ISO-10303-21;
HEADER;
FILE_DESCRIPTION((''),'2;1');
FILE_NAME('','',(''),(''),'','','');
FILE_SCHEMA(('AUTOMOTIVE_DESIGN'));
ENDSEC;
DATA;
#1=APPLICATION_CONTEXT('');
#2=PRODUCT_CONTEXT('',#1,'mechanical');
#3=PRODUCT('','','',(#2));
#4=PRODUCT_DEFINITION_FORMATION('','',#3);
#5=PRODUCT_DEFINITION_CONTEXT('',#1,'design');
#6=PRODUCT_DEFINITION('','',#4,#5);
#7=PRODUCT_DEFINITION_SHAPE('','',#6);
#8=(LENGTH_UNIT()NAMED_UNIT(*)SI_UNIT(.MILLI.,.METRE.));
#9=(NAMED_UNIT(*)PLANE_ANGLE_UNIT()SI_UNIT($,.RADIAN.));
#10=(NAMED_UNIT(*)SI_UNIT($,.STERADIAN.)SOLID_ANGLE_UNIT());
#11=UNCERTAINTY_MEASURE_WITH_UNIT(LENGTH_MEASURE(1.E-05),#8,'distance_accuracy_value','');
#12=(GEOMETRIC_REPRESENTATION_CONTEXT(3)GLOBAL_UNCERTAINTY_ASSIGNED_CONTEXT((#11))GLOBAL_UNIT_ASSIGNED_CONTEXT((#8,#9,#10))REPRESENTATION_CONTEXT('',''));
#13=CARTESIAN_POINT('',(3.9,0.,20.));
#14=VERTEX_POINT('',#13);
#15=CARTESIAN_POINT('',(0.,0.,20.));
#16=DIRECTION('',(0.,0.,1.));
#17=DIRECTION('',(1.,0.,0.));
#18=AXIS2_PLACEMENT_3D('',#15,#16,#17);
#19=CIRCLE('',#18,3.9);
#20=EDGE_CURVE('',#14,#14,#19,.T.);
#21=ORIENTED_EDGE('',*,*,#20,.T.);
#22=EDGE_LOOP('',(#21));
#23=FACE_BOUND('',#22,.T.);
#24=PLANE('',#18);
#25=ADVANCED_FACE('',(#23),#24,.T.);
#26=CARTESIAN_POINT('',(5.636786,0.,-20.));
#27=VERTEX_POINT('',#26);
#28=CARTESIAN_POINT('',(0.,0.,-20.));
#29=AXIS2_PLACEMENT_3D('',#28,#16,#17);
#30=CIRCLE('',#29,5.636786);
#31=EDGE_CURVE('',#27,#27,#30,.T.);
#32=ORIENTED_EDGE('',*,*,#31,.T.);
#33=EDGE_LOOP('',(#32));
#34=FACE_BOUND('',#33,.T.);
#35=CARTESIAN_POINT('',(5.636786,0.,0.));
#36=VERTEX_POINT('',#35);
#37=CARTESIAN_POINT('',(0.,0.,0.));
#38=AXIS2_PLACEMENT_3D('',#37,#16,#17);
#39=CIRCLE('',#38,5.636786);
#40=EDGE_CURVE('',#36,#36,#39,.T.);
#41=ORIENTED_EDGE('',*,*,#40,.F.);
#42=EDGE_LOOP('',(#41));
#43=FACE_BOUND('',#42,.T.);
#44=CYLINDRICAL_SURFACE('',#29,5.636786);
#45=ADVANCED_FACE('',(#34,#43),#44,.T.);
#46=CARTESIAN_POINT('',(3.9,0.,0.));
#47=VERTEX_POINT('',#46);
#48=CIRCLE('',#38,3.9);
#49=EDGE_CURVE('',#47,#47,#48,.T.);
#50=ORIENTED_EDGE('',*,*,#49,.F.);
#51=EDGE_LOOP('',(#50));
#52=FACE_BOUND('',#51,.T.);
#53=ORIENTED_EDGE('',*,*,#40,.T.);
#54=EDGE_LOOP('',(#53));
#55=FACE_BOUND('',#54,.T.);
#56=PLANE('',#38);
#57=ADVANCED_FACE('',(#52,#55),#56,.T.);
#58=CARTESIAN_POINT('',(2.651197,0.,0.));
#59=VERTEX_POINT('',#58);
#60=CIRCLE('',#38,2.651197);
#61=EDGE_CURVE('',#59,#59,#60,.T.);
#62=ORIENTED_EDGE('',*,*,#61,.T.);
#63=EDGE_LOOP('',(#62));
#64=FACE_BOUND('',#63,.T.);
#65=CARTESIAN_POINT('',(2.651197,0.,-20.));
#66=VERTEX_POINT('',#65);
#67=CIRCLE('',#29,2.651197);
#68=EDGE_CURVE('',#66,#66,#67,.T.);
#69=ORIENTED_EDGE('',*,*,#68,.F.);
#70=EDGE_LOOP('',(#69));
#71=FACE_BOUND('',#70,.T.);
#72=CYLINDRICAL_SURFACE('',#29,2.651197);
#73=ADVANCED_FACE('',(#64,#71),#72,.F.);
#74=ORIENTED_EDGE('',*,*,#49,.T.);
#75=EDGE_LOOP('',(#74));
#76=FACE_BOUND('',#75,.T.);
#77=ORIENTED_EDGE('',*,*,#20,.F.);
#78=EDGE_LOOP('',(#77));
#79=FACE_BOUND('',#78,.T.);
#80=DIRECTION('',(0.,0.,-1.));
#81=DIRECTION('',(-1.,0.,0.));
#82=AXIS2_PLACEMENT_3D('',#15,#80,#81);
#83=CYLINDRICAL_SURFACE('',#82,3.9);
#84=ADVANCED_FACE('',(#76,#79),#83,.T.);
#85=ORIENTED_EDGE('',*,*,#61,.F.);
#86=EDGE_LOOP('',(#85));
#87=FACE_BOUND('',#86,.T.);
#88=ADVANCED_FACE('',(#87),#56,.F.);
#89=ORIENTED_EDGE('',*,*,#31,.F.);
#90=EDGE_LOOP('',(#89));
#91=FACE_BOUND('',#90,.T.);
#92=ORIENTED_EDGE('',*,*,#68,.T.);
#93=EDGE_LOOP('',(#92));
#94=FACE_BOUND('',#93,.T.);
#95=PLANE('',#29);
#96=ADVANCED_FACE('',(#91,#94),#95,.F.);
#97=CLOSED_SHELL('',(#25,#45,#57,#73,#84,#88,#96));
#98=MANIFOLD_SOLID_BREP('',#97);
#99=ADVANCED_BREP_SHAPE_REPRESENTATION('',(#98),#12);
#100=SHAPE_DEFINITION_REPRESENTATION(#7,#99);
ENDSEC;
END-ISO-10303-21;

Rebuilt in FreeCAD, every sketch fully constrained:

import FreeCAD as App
import Part
import Sketcher

V = App.Vector
Q = App.Units.Quantity

doc = App.newDocument("Part")
params = doc.addObject("Spreadsheet::Sheet", "Params")
for row, (alias, value) in enumerate([
    ("sketch1_diameter", "7.8 mm"),
    ("pad1_length", "20 mm"),
    ("pad2_length", "20 mm"),
], start=1):
    params.set(f"A{row}", alias)
    params.set(f"B{row}", "=" + value)
    params.setAlias(f"B{row}", alias)

body = doc.addObject("PartDesign::Body", "Body")

# Sketch on XY plane
sketch1 = body.newObject("Sketcher::SketchObject", "Sketch")
sketch1.AttachmentSupport = (doc.getObject("XY_Plane"), [""])
sketch1.MapMode = "FlatFace"
sketch1.addGeometry(Part.Circle(V(0, 0, 0), V(0, 0, 1), 3.9), False)
sketch1.addConstraint([
    Sketcher.Constraint("Coincident", 0, 3, -1, 1),
    Sketcher.Constraint("Diameter", 0, Q("7.8 mm")),
])
sketch1.setExpression("Constraints[1]", "Params.sketch1_diameter")
pad1 = body.newObject("PartDesign::Pad", "Pad")
pad1.Profile = sketch1
pad1.setExpression("Length", "Params.pad1_length")

# Sketch on XY plane
sketch2 = body.newObject("Sketcher::SketchObject", "Sketch001")
sketch2.AttachmentSupport = (doc.getObject("XY_Plane"), [""])
sketch2.MapMode = "FlatFace"
sketch2.addGeometry([
    Part.Circle(V(0, 0, 0), V(0, 0, 1), 5.6),
    Part.Circle(V(0, 0, 0), V(0, 0, 1), 2.7),
], False)
sketch2.addConstraint([
    Sketcher.Constraint("Coincident", 0, 3, -1, 1),
    Sketcher.Constraint("Coincident", 1, 3, -1, 1),
    Sketcher.Constraint("Diameter", 0, Q("11.273572 mm")),
    Sketcher.Constraint("Diameter", 1, Q("5.302394 mm")),
])
pad2 = body.newObject("PartDesign::Pad", "Pad001")
pad2.Profile = sketch2
pad2.setExpression("Length", "Params.pad2_length")
pad2.Reversed = True

doc.recompute()
